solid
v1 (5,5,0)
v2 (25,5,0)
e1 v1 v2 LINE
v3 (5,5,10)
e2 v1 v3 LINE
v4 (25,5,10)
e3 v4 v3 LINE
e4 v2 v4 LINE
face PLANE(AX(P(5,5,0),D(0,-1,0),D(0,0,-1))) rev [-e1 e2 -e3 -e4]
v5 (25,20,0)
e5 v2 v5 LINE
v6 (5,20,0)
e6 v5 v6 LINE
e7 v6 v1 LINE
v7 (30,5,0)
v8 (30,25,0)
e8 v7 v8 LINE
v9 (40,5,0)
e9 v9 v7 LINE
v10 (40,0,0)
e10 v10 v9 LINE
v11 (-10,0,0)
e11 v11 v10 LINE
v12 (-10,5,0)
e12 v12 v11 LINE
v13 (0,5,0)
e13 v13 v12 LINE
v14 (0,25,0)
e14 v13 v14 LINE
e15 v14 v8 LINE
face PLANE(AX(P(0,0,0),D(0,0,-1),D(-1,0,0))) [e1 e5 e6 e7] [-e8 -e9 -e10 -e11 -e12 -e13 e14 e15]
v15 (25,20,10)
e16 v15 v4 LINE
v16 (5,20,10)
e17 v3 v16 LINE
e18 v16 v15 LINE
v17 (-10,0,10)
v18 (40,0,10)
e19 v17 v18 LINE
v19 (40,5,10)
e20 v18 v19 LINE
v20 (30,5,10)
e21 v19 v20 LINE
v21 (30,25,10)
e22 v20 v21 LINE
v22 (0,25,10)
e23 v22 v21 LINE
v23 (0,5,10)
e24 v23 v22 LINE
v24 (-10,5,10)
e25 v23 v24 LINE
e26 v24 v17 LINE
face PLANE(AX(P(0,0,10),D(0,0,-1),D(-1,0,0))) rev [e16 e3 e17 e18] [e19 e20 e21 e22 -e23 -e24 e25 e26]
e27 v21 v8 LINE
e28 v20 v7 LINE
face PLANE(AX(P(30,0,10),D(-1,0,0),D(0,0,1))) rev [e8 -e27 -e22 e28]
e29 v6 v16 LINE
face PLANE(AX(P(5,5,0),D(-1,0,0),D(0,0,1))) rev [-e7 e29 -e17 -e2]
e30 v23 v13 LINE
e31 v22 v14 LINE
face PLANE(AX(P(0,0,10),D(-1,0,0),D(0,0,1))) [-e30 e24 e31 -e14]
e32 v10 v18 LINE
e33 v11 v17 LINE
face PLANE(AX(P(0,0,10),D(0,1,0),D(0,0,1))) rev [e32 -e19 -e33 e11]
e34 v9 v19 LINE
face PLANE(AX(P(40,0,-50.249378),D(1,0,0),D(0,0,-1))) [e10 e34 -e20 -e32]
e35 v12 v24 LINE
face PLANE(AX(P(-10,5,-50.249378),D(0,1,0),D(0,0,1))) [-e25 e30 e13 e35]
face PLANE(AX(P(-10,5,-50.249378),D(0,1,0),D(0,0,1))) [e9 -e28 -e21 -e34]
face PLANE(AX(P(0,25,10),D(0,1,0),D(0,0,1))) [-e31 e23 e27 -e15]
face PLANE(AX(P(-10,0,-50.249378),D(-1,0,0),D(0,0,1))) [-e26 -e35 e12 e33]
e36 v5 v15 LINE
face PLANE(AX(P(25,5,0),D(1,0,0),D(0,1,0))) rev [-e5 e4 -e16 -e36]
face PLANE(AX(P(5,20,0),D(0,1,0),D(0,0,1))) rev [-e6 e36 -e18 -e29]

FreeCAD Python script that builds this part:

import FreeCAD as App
import Part
import Sketcher


def add_polygon(sketch, points):
    """Adds a closed chain of lines whose ends are joined by coincident constraints."""
    first, n = sketch.GeometryCount, len(points)
    for a, b in zip(points, points[1:] + points[:1]):
        sketch.addGeometry(Part.LineSegment(App.Vector(*a, 0), App.Vector(*b, 0)), False)
    for i in range(n):
        sketch.addConstraint(Sketcher.Constraint("Coincident", first + i, 2, first + (i + 1) % n, 1))

doc = App.newDocument("Part")
body = doc.addObject("PartDesign::Body", "Body")

# Sketch on XY plane
sketch1 = doc.addObject("Sketcher::SketchObject", "Sketch")
body.addObject(sketch1)
sketch1.AttachmentSupport = (doc.XY_Plane, [""])
sketch1.MapMode = "FlatFace"
add_polygon(sketch1, [(0, 25), (0, 0), (30, 0), (30, 25)])  # lines 0-3
sketch1.addConstraint(Sketcher.Constraint("Vertical", 0))
sketch1.addConstraint(Sketcher.Constraint("Horizontal", 1))
sketch1.addConstraint(Sketcher.Constraint("Vertical", 2))
sketch1.addConstraint(Sketcher.Constraint("Horizontal", 3))
sketch1.addConstraint(Sketcher.Constraint("Coincident", 0, 2, -1, 1))
sketch1.addConstraint(Sketcher.Constraint("DistanceX", 1, 1, 1, 2, 30.0))
sketch1.addConstraint(Sketcher.Constraint("DistanceY", 0, 2, 0, 1, 25.0))
pad1 = doc.addObject("PartDesign::Pad", "Pad")
body.addObject(pad1)
pad1.Profile = sketch1
pad1.Length = 10

# Sketch on XY plane
sketch2 = doc.addObject("Sketcher::SketchObject", "Sketch001")
body.addObject(sketch2)
sketch2.AttachmentSupport = (doc.XY_Plane, [""])
sketch2.MapMode = "FlatFace"
sketch2.AttachmentOffset = App.Placement(App.Vector(0, 0, 10), App.Rotation())
add_polygon(sketch2, [(-10, 5), (-10, 0), (40, 0), (40, 5)])  # lines 0-3
sketch2.addConstraint(Sketcher.Constraint("Vertical", 0))
sketch2.addConstraint(Sketcher.Constraint("Horizontal", 1))
sketch2.addConstraint(Sketcher.Constraint("Vertical", 2))
sketch2.addConstraint(Sketcher.Constraint("Horizontal", 3))
sketch2.addConstraint(Sketcher.Constraint("PointOnObject", 0, 2, -1))
sketch2.addConstraint(Sketcher.Constraint("DistanceX", 1, 1, 1, 2, 50.0))
sketch2.addConstraint(Sketcher.Constraint("DistanceY", 0, 2, 0, 1, 5.0))
sketch2.addConstraint(Sketcher.Constraint("DistanceX", 0, 2, -1, 1, 10.0))
pad2 = doc.addObject("PartDesign::Pad", "Pad001")
body.addObject(pad2)
pad2.Profile = sketch2
pad2.Length = 10
pad2.Reversed = True

# Sketch on XY plane
sketch3 = doc.addObject("Sketcher::SketchObject", "Sketch002")
body.addObject(sketch3)
sketch3.AttachmentSupport = (doc.XY_Plane, [""])
sketch3.MapMode = "FlatFace"
sketch3.AttachmentOffset = App.Placement(App.Vector(0, 0, 10), App.Rotation())
add_polygon(sketch3, [(5, 20), (5, 5), (25, 5), (25, 20)])  # lines 0-3
sketch3.addConstraint(Sketcher.Constraint("Vertical", 0))
sketch3.addConstraint(Sketcher.Constraint("Horizontal", 1))
sketch3.addConstraint(Sketcher.Constraint("Vertical", 2))
sketch3.addConstraint(Sketcher.Constraint("Horizontal", 3))
sketch3.addConstraint(Sketcher.Constraint("DistanceX", 1, 1, 1, 2, 20.0))
sketch3.addConstraint(Sketcher.Constraint("DistanceY", 0, 2, 0, 1, 15.0))
sketch3.addConstraint(Sketcher.Constraint("DistanceX", -1, 1, 0, 2, 5.0))
sketch3.addConstraint(Sketcher.Constraint("DistanceY", -1, 1, 0, 2, 5.0))
pocket1 = doc.addObject("PartDesign::Pocket", "Pocket")
body.addObject(pocket1)
pocket1.Profile = sketch3
pocket1.Type = "ThroughAll"
pocket1.Midplane = True

doc.recompute()
